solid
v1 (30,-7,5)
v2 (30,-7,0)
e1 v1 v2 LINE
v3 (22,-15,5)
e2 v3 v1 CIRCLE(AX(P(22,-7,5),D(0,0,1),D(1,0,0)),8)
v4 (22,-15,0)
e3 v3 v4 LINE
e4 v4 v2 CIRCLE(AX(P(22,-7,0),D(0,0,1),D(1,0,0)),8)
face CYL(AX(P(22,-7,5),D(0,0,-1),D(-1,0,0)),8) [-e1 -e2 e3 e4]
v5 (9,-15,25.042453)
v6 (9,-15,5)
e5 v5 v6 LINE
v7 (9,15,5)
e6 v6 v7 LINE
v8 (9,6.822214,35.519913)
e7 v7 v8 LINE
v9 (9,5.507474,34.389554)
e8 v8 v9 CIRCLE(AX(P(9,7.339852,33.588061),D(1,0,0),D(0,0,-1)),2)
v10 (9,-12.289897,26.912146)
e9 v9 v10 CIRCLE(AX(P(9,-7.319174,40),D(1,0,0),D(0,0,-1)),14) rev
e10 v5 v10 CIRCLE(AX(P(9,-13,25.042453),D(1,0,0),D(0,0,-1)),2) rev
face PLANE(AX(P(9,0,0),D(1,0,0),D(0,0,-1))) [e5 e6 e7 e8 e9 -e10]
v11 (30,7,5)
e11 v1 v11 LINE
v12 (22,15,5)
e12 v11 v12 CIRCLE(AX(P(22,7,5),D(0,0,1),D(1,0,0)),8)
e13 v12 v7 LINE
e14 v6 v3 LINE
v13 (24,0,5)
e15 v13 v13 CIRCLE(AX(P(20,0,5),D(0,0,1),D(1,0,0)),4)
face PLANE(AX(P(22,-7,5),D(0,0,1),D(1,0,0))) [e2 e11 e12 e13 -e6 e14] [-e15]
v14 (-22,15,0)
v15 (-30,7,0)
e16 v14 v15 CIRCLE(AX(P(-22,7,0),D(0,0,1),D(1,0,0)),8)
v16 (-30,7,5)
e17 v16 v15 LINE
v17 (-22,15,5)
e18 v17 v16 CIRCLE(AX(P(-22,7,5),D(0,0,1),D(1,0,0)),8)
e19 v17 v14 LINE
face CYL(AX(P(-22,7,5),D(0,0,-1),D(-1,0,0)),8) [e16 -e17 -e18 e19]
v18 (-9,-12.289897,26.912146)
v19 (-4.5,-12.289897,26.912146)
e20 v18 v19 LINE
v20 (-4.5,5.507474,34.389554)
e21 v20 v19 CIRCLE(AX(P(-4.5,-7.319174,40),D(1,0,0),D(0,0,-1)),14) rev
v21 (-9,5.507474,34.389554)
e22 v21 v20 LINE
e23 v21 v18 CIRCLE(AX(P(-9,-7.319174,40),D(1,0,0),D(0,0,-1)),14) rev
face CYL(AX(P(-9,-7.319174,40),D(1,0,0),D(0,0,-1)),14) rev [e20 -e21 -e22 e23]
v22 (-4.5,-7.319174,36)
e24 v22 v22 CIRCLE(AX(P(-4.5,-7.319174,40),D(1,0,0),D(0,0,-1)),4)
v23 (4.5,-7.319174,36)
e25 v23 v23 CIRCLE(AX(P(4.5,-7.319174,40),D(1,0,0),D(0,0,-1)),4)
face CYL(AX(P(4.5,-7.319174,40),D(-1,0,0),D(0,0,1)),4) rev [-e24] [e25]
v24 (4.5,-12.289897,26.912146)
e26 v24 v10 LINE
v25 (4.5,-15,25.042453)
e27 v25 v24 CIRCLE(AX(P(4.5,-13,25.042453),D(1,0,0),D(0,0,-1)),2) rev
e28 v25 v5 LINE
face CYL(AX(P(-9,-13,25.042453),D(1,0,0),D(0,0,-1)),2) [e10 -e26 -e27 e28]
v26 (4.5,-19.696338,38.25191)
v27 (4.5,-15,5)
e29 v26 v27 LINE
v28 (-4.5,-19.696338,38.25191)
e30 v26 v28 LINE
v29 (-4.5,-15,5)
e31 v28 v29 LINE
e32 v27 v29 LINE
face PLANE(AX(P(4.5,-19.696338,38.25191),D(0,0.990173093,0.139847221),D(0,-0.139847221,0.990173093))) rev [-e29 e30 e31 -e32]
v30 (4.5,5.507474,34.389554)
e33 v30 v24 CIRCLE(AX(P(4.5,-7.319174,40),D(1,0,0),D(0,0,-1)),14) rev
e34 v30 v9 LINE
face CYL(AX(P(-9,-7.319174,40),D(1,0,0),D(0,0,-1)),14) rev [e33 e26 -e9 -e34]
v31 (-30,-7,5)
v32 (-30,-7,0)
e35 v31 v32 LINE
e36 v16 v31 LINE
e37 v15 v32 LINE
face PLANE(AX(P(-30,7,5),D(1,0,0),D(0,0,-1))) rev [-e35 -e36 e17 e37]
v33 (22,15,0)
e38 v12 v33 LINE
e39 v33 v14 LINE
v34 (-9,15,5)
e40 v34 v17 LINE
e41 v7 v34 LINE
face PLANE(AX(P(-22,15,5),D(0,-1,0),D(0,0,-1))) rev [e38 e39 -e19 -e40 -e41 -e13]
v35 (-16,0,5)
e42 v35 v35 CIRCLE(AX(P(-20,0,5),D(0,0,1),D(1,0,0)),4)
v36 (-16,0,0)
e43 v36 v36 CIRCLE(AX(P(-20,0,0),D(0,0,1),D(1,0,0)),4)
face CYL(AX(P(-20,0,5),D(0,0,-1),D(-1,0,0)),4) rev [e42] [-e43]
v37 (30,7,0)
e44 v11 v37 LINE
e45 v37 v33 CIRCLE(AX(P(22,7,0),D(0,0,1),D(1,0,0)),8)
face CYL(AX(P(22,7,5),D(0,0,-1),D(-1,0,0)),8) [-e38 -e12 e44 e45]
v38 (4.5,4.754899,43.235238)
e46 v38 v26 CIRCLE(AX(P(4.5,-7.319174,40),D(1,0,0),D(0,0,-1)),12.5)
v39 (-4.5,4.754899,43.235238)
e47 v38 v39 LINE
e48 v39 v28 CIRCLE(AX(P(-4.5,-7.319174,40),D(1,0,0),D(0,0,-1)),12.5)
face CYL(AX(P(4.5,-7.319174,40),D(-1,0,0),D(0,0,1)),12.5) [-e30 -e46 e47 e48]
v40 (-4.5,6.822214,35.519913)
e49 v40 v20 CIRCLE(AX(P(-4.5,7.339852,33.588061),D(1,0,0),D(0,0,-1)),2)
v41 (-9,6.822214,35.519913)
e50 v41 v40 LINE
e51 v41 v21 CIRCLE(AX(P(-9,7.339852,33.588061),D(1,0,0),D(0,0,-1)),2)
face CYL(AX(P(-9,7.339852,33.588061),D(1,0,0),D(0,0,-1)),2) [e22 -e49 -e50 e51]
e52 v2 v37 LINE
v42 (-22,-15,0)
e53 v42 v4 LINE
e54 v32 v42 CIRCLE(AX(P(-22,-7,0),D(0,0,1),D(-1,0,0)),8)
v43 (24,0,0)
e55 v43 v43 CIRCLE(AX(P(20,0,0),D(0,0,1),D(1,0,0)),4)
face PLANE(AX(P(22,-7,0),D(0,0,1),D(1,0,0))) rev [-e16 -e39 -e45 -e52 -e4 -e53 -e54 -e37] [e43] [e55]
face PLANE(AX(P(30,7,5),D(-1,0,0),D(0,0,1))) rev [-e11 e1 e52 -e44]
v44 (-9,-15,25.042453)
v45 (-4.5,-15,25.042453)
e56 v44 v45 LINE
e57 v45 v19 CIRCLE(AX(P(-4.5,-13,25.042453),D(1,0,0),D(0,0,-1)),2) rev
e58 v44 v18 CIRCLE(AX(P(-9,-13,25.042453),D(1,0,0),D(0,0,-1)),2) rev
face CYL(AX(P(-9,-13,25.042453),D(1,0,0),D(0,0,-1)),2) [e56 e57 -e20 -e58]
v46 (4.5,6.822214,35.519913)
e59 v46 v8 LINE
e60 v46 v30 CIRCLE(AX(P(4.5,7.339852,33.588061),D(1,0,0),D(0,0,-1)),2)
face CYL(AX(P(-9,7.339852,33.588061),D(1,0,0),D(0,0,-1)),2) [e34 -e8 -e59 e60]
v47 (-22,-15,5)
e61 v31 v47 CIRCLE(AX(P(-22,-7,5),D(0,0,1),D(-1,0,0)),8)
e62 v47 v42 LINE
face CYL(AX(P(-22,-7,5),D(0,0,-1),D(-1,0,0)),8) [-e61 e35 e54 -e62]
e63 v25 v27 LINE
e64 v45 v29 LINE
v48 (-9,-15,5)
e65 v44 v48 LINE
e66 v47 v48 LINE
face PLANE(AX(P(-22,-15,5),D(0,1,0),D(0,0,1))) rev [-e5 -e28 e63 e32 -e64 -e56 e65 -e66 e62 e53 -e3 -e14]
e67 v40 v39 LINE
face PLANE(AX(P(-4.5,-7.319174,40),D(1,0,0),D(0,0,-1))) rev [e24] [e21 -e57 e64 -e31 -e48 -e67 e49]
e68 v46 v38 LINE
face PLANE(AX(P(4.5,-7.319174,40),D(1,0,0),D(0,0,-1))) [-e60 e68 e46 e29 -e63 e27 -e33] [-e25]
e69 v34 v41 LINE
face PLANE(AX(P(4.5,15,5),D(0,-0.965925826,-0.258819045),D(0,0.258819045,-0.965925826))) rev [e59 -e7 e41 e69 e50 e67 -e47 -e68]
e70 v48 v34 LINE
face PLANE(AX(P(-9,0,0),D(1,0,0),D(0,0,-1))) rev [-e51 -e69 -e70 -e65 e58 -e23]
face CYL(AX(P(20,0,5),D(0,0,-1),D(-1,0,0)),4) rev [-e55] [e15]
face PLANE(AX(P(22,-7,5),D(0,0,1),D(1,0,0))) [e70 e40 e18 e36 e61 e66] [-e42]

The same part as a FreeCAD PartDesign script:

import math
import FreeCAD as App
import Part
import Sketcher
from FreeCAD import Vector
Q = App.Units.Quantity

doc = App.newDocument("Part")
body = doc.addObject("PartDesign::Body", "Body")

sketch1 = body.newObject("Sketcher::SketchObject", "Sketch")
sketch1.AttachmentSupport = (doc.getObject("XY_Plane"), [""])
sketch1.MapMode = "FlatFace"
sketch1.addGeometry([
    Part.LineSegment(Vector(22, 15, 0), Vector(-22, 15, 0)),
    Part.ArcOfCircle(Part.Circle(Vector(-22, 7, 0), Vector(0, 0, 1), 8), math.radians(90), math.radians(180)),
    Part.LineSegment(Vector(-30, 7, 0), Vector(-30, -7, 0)),
    Part.ArcOfCircle(Part.Circle(Vector(-22, -7, 0), Vector(0, 0, 1), 8), math.radians(-180), math.radians(-90)),
    Part.LineSegment(Vector(-22, -15, 0), Vector(22, -15, 0)),
    Part.ArcOfCircle(Part.Circle(Vector(22, -7, 0), Vector(0, 0, 1), 8), math.radians(-90), math.radians(0)),
    Part.LineSegment(Vector(30, -7, 0), Vector(30, 7, 0)),
    Part.ArcOfCircle(Part.Circle(Vector(22, 7, 0), Vector(0, 0, 1), 8), math.radians(0), math.radians(90)),
    Part.Circle(Vector(20, 0, 0), Vector(0, 0, 1), 4),
    Part.Circle(Vector(-20, 0, 0), Vector(0, 0, 1), 4),
], False)
sketch1.addConstraint([
    Sketcher.Constraint("Tangent", 0, 2, 1, 1),
    Sketcher.Constraint("Tangent", 1, 2, 2, 1),
    Sketcher.Constraint("Tangent", 2, 2, 3, 1),
    Sketcher.Constraint("Tangent", 3, 2, 4, 1),
    Sketcher.Constraint("Tangent", 4, 2, 5, 1),
    Sketcher.Constraint("Tangent", 5, 2, 6, 1),
    Sketcher.Constraint("Tangent", 6, 2, 7, 1),
    Sketcher.Constraint("Tangent", 7, 2, 0, 1),
    Sketcher.Constraint("Horizontal", 0),
    Sketcher.Constraint("Vertical", 2),
    Sketcher.Constraint("Horizontal", 4),
    Sketcher.Constraint("Vertical", 6),
    Sketcher.Constraint("Equal", 1, 3),
    Sketcher.Constraint("Equal", 3, 5),
    Sketcher.Constraint("Equal", 5, 7),
    Sketcher.Constraint("Equal", 8, 9),
    Sketcher.Constraint("Symmetric", 1, 3, 5, 3, -1, 1),
    Sketcher.Constraint("Symmetric", 8, 3, 9, 3, -1, 1),
    Sketcher.Constraint("PointOnObject", 8, 3, -1),
    Sketcher.Constraint("Diameter", 8, 8.0),
    Sketcher.Constraint("Radius", 1, 8.0),
    Sketcher.Constraint("DistanceX", 0, 2, 0, 1, 44.0),
    Sketcher.Constraint("DistanceY", 2, 2, 2, 1, 14.0),
    Sketcher.Constraint("DistanceX", -1, 1, 8, 3, 20.0),
])
pad1 = body.newObject("PartDesign::Pad", "Pad")
pad1.Profile = sketch1
pad1.Length = 5

sketch2 = body.newObject("Sketcher::SketchObject", "Sketch001")
sketch2.AttachmentSupport = (doc.getObject("YZ_Plane"), [""])
sketch2.MapMode = "FlatFace"
sketch2.addGeometry([
    Part.LineSegment(Vector(15, 5, 0), Vector(4.8, 43.2, 0)),
    Part.ArcOfCircle(Part.Circle(Vector(-7.3, 40, 0), Vector(0, 0, 1), 12.5), math.radians(15), math.radians(188)),
    Part.LineSegment(Vector(-19.7, 38.3, 0), Vector(-15, 5, 0)),
    Part.LineSegment(Vector(-15, 5, 0), Vector(15, 5, 0)),
    Part.Circle(Vector(-7.3, 40, 0), Vector(0, 0, 1), 4),
], False)
sketch2.addConstraint([
    Sketcher.Constraint("Tangent", 0, 2, 1, 1),
    Sketcher.Constraint("Tangent", 1, 2, 2, 1),
    Sketcher.Constraint("Coincident", 2, 2, 3, 1),
    Sketcher.Constraint("Coincident", 3, 2, 0, 1),
    Sketcher.Constraint("Horizontal", 3),
    Sketcher.Constraint("Coincident", 4, 3, 1, 3),
    Sketcher.Constraint("Diameter", 4, 8.0),
    Sketcher.Constraint("Radius", 1, 12.5),
    Sketcher.Constraint("DistanceX", 3, 1, 3, 2, 30.0),
    Sketcher.Constraint("Angle", 0, Q("105 deg")),
    Sketcher.Constraint("DistanceY", -1, 1, 1, 3, 40.0),
    Sketcher.Constraint("DistanceX", 2, 2, -1, 1, 15.0),
    Sketcher.Constraint("DistanceY", -1, 1, 2, 2, 5.0),
])
pad2 = body.newObject("PartDesign::Pad", "Pad001")
pad2.Profile = sketch2
pad2.Length = 9
pad2.Midplane = True

sketch3 = body.newObject("Sketcher::SketchObject", "Sketch002")
sketch3.AttachmentSupport = (doc.getObject("YZ_Plane"), [""])
sketch3.MapMode = "FlatFace"
sketch3.AttachmentOffset = App.Placement(Vector(0, 0, 4.5), App.Rotation())
sketch3.addGeometry([
    Part.LineSegment(Vector(-15, 5, 0), Vector(15, 5, 0)),
    Part.LineSegment(Vector(15, 5, 0), Vector(6.8, 35.5, 0)),
    Part.ArcOfCircle(Part.Circle(Vector(7.3, 33.6, 0), Vector(0, 0, 1), 2), math.radians(105), math.radians(156)),
    Part.ArcOfCircle(Part.Circle(Vector(-7.3, 40, 0), Vector(0, 0, 1), 14), math.radians(-111), math.radians(-24)),
    Part.ArcOfCircle(Part.Circle(Vector(-13, 25, 0), Vector(0, 0, 1), 2), math.radians(69), math.radians(180)),
    Part.LineSegment(Vector(-15, 25, 0), Vector(-15, 5, 0)),
], False)
sketch3.addConstraint([
    Sketcher.Constraint("Coincident", 0, 2, 1, 1),
    Sketcher.Constraint("Coincident", 1, 2, 2, 1),
    Sketcher.Constraint("Tangent", 2, 2, 3, 2),
    Sketcher.Constraint("Tangent", 3, 1, 4, 1),
    Sketcher.Constraint("Tangent", 4, 2, 5, 1),
    Sketcher.Constraint("Coincident", 5, 2, 0, 1),
    Sketcher.Constraint("Horizontal", 0),
    Sketcher.Constraint("Vertical", 5),
    Sketcher.Constraint("Equal", 2, 4),
    Sketcher.Constraint("Radius", 2, 2.0),
    Sketcher.Constraint("Radius", 3, 14.0),
    Sketcher.Constraint("DistanceX", 0, 1, 0, 2, 30.0),
    Sketcher.Constraint("Angle", 1, Q("105 deg")),
    Sketcher.Constraint("DistanceY", -1, 1, 3, 3, 40.0),
    Sketcher.Constraint("DistanceX", 4, 3, -1, 1, 13.0),
    Sketcher.Constraint("DistanceY", -1, 1, 0, 2, 5.0),
    Sketcher.Constraint("DistanceY", 4, 3, 2, 2, 9.347101),
    Sketcher.Constraint("Distance", 1, 31.596539),
])
pad3 = body.newObject("PartDesign::Pad", "Pad002")
pad3.Profile = sketch3
pad3.Type = "TwoLengths"
pad3.Length = 4.5
pad3.Length2 = 13.5

doc.recompute()
